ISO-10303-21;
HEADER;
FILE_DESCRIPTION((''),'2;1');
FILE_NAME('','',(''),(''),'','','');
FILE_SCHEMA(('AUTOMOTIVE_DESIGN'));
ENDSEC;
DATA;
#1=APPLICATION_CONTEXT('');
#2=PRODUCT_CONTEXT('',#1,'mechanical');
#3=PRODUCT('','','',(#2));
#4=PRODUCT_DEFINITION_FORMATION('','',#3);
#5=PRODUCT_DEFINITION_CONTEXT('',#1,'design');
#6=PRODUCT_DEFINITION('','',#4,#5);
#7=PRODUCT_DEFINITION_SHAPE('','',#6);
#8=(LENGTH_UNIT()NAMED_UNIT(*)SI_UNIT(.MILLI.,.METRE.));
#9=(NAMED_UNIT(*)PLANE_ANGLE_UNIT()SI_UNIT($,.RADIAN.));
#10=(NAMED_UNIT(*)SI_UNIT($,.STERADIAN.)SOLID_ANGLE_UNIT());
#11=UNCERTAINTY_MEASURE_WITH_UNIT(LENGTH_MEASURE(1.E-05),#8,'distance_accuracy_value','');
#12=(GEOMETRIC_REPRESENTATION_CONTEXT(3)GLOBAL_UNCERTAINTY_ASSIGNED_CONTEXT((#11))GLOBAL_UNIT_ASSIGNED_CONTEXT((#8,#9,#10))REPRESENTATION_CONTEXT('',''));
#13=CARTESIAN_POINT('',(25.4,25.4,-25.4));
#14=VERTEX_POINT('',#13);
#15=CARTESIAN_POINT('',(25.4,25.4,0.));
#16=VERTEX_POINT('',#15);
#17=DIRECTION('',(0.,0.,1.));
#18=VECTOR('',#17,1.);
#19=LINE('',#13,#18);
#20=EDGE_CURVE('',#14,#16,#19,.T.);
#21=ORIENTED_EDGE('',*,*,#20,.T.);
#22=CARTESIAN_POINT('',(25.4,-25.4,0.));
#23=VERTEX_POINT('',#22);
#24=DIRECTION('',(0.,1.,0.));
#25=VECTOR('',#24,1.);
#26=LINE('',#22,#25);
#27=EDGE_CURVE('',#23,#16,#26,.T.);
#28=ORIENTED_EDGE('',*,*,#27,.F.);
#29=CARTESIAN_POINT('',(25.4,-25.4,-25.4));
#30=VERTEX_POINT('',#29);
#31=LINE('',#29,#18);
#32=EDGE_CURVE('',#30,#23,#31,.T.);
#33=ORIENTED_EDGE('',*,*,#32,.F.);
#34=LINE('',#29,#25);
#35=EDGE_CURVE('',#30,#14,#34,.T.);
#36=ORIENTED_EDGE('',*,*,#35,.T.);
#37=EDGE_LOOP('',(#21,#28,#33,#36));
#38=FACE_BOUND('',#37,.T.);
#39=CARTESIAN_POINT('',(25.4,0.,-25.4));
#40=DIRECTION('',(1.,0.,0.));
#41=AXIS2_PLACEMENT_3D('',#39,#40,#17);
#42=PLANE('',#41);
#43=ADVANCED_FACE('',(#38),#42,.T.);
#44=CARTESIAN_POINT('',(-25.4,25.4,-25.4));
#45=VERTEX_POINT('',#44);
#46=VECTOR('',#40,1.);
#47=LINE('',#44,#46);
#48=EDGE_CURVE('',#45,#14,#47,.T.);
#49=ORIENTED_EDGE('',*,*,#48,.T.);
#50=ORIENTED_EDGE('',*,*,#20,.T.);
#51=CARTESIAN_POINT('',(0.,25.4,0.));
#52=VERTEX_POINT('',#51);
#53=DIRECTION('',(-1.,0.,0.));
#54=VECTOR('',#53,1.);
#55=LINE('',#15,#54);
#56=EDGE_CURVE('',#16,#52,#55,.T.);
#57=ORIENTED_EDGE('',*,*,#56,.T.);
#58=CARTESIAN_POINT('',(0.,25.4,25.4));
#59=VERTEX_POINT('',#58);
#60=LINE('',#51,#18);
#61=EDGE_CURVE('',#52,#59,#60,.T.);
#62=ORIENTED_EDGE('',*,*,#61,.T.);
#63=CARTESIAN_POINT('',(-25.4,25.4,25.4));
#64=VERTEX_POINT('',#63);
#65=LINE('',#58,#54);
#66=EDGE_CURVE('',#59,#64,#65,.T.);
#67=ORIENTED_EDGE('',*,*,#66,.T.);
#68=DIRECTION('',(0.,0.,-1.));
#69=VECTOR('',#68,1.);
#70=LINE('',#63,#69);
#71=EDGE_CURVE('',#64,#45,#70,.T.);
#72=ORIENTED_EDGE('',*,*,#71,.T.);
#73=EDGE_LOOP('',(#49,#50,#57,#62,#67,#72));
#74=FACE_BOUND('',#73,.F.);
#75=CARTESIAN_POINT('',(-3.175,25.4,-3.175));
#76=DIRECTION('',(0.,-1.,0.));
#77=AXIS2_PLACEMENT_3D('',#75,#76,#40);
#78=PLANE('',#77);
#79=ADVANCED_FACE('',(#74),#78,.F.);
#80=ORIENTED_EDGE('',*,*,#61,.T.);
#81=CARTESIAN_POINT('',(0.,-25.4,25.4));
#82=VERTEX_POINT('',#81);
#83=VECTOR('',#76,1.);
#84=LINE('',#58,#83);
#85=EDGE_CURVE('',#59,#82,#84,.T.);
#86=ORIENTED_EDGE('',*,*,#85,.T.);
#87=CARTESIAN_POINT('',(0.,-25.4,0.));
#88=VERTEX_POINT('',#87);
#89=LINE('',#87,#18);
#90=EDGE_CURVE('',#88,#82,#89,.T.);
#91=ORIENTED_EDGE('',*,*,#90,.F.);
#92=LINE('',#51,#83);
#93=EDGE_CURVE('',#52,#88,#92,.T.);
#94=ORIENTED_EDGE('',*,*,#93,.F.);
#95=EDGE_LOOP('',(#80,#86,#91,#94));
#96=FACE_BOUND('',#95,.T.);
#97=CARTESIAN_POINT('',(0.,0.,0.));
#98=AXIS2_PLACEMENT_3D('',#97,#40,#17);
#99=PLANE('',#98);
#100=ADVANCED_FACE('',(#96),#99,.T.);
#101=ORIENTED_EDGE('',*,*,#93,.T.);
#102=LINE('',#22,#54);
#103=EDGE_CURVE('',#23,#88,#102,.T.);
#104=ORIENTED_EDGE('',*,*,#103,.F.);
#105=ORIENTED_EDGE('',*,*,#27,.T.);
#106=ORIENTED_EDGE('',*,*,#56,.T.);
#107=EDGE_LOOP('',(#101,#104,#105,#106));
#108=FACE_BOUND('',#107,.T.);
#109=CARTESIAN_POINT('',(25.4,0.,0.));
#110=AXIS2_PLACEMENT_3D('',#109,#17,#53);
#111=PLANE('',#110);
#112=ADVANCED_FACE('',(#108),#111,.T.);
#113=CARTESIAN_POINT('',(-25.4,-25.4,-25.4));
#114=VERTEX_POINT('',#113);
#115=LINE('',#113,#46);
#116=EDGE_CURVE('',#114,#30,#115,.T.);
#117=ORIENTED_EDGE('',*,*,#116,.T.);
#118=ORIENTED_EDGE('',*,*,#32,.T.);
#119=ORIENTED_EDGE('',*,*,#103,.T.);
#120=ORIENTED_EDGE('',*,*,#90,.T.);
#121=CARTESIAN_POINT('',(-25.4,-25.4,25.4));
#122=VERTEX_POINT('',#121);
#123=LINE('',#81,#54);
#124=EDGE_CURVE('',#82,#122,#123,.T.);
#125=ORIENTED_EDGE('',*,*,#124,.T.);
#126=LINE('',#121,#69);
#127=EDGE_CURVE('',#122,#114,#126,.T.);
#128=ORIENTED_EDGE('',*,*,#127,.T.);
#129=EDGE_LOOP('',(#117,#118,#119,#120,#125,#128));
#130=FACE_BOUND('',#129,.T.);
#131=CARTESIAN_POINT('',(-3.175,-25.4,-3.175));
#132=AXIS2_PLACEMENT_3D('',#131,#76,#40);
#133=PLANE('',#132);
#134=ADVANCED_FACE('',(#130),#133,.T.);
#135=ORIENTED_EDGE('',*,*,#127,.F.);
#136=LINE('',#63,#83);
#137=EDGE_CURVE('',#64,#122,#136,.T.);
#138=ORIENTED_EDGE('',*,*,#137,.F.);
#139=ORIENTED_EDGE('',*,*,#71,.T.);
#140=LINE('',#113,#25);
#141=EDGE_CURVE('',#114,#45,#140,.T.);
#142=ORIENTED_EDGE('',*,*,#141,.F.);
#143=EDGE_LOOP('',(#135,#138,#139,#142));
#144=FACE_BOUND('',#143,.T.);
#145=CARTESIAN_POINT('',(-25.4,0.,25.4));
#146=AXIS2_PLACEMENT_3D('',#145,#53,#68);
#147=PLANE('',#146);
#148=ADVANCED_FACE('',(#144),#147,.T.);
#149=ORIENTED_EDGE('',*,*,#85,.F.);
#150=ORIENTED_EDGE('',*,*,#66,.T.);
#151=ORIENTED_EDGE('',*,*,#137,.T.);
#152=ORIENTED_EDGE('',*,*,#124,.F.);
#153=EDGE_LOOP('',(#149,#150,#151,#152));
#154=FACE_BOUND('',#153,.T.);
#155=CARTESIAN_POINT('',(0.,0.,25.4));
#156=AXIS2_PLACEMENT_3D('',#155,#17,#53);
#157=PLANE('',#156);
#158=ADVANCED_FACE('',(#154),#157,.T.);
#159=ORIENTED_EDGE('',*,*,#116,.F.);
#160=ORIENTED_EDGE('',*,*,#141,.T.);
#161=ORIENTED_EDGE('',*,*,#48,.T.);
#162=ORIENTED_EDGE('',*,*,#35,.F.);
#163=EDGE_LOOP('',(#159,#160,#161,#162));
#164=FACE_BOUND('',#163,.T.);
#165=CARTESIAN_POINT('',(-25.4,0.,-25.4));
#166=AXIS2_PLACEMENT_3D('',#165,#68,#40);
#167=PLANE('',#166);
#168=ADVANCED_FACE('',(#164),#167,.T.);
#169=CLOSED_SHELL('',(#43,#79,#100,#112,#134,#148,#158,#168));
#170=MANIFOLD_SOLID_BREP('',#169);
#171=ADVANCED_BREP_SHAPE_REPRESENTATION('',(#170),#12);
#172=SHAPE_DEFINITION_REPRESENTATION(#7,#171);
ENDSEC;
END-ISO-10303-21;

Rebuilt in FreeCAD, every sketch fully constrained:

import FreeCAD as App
import Part
import Sketcher

V = App.Vector
Q = App.Units.Quantity

doc = App.newDocument("Part")
body = doc.addObject("PartDesign::Body", "Body")

sketch1 = body.newObject("Sketcher::SketchObject", "Sketch")
sketch1.AttachmentSupport = (doc.getObject("XZ_Plane"), [""])
sketch1.MapMode = "FlatFace"
sketch1.addGeometry([
    Part.LineSegment(V(25, 0, 0), V(0, 0, 0)),
    Part.LineSegment(V(0, 0, 0), V(0, 25, 0)),
    Part.LineSegment(V(0, 25, 0), V(-25, 25, 0)),
    Part.LineSegment(V(-25, 25, 0), V(-25, -25, 0)),
    Part.LineSegment(V(-25, -25, 0), V(25, -25, 0)),
    Part.LineSegment(V(25, -25, 0), V(25, 0, 0)),
], False)
sketch1.addConstraint([
    Sketcher.Constraint("Coincident", 0, 2, 1, 1),
    Sketcher.Constraint("Coincident", 1, 2, 2, 1),
    Sketcher.Constraint("Coincident", 2, 2, 3, 1),
    Sketcher.Constraint("Coincident", 3, 2, 4, 1),
    Sketcher.Constraint("Coincident", 4, 2, 5, 1),
    Sketcher.Constraint("Coincident", 5, 2, 0, 1),
    Sketcher.Constraint("Horizontal", 0),
    Sketcher.Constraint("Vertical", 1),
    Sketcher.Constraint("Horizontal", 2),
    Sketcher.Constraint("Vertical", 3),
    Sketcher.Constraint("Horizontal", 4),
    Sketcher.Constraint("Vertical", 5),
    Sketcher.Constraint("Coincident", 0, 2, -1, 1),
    Sketcher.Constraint("Symmetric", 2, 2, 4, 2, -1, 1),
    Sketcher.Constraint("Equal", 2, 1),
    Sketcher.Constraint("DistanceX", 0, 2, 0, 1, Q("1 in")),
])
pad1 = body.newObject("PartDesign::Pad", "Pad")
pad1.Profile = sketch1
pad1.Type = "TwoLengths"
pad1.Length = Q("1 in")
pad1.Length2 = Q("1 in")

doc.recompute()
